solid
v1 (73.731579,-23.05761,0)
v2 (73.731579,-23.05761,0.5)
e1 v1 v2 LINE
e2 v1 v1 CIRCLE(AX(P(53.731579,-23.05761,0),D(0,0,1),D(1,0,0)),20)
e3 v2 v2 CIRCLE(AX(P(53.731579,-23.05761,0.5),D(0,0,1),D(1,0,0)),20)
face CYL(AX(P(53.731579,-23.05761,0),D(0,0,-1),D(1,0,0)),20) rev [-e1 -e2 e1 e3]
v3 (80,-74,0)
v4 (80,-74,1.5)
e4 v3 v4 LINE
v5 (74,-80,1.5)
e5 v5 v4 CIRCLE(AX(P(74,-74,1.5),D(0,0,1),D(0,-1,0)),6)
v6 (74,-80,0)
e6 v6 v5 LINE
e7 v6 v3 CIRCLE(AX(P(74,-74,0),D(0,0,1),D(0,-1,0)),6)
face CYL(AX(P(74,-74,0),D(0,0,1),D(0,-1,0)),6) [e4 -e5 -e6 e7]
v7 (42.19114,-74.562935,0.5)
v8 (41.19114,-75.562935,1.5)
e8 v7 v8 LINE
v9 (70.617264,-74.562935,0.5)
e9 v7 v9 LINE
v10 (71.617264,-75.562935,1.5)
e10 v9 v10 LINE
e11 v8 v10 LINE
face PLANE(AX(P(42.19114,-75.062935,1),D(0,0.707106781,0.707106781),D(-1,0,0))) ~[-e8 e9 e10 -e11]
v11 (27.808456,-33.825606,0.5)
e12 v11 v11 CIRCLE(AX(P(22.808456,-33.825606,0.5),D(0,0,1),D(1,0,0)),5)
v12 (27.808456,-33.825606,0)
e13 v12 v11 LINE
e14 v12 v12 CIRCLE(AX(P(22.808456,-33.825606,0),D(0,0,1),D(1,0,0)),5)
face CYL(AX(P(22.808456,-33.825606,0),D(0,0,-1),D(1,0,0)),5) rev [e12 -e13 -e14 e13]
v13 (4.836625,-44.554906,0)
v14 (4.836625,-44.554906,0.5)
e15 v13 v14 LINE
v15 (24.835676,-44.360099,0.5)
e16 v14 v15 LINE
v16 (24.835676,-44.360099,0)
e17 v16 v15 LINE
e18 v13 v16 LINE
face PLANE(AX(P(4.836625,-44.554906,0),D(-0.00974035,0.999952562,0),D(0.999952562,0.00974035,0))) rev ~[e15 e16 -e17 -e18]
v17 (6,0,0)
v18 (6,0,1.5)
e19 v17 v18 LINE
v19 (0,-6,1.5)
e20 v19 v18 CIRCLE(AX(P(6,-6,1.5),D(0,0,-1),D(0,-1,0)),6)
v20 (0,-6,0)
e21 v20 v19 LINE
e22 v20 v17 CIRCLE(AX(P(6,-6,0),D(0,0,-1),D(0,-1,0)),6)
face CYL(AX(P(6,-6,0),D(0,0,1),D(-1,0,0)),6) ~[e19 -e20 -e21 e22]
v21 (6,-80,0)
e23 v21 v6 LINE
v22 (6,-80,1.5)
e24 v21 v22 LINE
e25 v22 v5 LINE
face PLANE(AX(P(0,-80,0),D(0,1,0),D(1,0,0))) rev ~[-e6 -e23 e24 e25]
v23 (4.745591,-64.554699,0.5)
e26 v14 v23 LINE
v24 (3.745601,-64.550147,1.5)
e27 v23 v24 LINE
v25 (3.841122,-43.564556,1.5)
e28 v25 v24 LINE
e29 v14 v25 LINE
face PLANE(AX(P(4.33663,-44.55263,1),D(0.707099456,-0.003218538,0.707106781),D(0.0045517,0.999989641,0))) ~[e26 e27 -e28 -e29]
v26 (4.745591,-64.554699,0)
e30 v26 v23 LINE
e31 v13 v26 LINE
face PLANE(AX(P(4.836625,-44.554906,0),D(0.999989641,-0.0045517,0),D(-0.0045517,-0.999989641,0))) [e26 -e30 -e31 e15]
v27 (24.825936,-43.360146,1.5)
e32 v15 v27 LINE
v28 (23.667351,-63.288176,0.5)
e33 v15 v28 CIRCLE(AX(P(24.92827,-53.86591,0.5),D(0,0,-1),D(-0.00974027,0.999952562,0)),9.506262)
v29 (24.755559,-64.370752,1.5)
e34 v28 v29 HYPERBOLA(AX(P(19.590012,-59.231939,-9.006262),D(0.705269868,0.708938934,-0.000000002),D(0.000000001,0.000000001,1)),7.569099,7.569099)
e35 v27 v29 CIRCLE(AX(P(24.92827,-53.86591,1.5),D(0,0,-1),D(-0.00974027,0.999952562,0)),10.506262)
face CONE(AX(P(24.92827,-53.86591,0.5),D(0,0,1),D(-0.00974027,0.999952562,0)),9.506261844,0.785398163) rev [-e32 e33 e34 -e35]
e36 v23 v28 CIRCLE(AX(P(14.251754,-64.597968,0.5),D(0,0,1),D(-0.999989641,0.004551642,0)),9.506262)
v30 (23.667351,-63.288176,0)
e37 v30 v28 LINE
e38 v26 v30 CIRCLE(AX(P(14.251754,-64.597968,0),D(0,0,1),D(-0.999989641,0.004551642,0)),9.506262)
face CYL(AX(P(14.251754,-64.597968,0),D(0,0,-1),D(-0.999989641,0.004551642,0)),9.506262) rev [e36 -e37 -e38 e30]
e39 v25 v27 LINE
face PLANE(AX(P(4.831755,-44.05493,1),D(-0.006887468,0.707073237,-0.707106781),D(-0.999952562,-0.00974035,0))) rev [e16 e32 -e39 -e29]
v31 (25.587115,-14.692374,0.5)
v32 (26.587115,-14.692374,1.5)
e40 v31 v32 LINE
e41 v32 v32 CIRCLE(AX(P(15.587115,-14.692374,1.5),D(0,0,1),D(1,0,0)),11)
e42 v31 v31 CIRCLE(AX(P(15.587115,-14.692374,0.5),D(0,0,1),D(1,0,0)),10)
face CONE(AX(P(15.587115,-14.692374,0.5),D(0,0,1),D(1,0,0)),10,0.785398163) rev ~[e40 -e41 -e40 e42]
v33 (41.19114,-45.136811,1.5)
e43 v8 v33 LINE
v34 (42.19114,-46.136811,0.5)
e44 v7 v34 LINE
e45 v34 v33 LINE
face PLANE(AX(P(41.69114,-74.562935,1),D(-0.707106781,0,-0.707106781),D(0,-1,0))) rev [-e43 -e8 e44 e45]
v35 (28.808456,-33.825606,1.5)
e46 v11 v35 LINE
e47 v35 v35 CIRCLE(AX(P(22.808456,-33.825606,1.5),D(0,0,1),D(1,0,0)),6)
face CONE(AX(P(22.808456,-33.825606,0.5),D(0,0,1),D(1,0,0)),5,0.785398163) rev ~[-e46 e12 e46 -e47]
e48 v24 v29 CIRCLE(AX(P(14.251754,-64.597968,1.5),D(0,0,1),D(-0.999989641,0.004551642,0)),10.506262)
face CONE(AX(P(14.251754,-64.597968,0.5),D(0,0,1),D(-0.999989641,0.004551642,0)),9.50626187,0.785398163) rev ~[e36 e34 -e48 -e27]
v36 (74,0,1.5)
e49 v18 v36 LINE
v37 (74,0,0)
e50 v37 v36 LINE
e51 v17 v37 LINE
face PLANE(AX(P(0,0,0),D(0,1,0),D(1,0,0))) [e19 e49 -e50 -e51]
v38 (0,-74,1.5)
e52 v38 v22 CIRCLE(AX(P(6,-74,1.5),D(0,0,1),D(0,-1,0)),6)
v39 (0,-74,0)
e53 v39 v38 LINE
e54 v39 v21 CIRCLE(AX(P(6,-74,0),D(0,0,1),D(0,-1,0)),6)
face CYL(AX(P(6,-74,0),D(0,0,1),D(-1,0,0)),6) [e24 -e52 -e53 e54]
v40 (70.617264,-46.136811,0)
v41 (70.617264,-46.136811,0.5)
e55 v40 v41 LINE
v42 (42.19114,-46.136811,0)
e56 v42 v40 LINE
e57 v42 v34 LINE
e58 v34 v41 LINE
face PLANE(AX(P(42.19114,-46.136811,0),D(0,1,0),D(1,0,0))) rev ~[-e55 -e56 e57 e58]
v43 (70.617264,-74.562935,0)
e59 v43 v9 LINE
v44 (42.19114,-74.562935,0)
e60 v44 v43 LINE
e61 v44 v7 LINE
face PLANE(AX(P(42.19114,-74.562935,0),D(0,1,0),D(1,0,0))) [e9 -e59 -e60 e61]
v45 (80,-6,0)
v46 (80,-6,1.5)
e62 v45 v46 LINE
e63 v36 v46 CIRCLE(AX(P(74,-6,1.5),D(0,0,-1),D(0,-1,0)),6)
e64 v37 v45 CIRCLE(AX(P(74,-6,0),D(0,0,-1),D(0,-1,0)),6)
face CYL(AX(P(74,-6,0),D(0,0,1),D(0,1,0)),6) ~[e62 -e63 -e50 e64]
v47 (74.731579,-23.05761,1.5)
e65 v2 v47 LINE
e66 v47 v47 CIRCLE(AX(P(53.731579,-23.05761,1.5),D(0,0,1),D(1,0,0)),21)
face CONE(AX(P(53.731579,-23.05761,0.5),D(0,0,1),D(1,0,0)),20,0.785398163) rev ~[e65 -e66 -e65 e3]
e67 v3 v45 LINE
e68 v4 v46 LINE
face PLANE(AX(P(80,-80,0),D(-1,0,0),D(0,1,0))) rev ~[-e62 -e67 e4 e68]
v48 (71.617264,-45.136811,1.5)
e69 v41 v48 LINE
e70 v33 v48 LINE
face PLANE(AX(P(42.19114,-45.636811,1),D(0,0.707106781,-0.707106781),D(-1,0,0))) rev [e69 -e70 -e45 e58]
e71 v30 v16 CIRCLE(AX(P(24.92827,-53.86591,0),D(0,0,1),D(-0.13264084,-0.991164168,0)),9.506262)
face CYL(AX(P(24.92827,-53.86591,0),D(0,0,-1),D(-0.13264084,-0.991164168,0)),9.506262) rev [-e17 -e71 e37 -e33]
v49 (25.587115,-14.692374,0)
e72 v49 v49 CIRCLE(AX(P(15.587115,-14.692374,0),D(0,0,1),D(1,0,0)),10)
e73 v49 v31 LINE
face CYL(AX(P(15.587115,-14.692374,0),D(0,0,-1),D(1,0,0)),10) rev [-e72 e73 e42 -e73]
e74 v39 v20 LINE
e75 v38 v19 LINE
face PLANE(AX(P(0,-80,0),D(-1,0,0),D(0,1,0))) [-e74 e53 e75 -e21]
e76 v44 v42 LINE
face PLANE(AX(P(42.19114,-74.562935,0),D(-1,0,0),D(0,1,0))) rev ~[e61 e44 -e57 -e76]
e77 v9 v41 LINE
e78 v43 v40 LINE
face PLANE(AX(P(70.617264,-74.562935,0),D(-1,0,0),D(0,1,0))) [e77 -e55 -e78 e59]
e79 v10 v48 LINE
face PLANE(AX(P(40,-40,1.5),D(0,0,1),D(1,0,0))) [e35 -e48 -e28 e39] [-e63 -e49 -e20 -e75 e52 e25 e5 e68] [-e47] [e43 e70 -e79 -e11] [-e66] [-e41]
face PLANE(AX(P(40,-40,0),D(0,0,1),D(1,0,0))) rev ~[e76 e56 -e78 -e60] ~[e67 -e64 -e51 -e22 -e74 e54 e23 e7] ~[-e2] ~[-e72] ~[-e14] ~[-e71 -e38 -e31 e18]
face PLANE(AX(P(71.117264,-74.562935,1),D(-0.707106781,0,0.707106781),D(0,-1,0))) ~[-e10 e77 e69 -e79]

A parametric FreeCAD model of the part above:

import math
import FreeCAD as App
import Part
import Sketcher
from FreeCAD import Vector


def edges_at(feature, points):
    """Names of the edges that pass closest to the given points."""
    edges = feature.Shape.Edges
    near = lambda p: min(range(len(edges)), key=lambda i: edges[i].distToShape(Part.Vertex(*p))[0])
    return sorted({f"Edge{near(p) + 1}" for p in points})

doc = App.newDocument("Part")
body = doc.addObject("PartDesign::Body", "Body")

# Sketch on XY plane
sketch1 = doc.addObject("Sketcher::SketchObject", "Sketch")
body.addObject(sketch1)
sketch1.AttachmentSupport = (doc.XY_Plane, [""])
sketch1.MapMode = "FlatFace"
sketch1.addGeometry([
    Part.LineSegment(Vector(0, 0, 0), Vector(0, -80, 0)),  # 0
    Part.LineSegment(Vector(0, -80, 0), Vector(80, -80, 0)),  # 1
    Part.LineSegment(Vector(80, -80, 0), Vector(80, 0, 0)),  # 2
    Part.LineSegment(Vector(80, 0, 0), Vector(0, 0, 0)),  # 3
    Part.LineSegment(Vector(5, -65, 0), Vector(5, -45, 0)),  # 4
    Part.LineSegment(Vector(5, -45, 0), Vector(25, -44, 0)),  # 5
    Part.ArcOfCircle(Part.Circle(Vector(25, -54, 0), Vector(0, 0, 1), 10), math.radians(-98), math.radians(91)),  # 6
    Part.ArcOfCircle(Part.Circle(Vector(14, -65, 0), Vector(0, 0, 1), 10), math.radians(180), math.radians(368)),  # 7
    Part.LineSegment(Vector(71, -75, 0), Vector(42, -75, 0)),  # 8
    Part.LineSegment(Vector(42, -75, 0), Vector(42, -46, 0)),  # 9
    Part.LineSegment(Vector(42, -46, 0), Vector(71, -46, 0)),  # 10
    Part.LineSegment(Vector(71, -46, 0), Vector(71, -75, 0)),  # 11
    Part.Circle(Vector(23, -34, 0), Vector(0, 0, 1), 5),  # 12
    Part.Circle(Vector(16, -15, 0), Vector(0, 0, 1), 10),  # 13
    Part.Circle(Vector(54, -23, 0), Vector(0, 0, 1), 20),  # 14
], False)
sketch1.addConstraint([
    Sketcher.Constraint("Coincident", 0, 2, 1, 1),
    Sketcher.Constraint("Coincident", 1, 2, 2, 1),
    Sketcher.Constraint("Coincident", 2, 2, 3, 1),
    Sketcher.Constraint("Coincident", 3, 2, 0, 1),
    Sketcher.Constraint("Coincident", 4, 2, 5, 1),
    Sketcher.Constraint("Tangent", 5, 2, 6, 2),
    Sketcher.Constraint("Coincident", 6, 1, 7, 2),
    Sketcher.Constraint("Tangent", 7, 1, 4, 1),
    Sketcher.Constraint("Coincident", 8, 2, 9, 1),
    Sketcher.Constraint("Coincident", 9, 2, 10, 1),
    Sketcher.Constraint("Coincident", 10, 2, 11, 1),
    Sketcher.Constraint("Coincident", 11, 2, 8, 1),
    Sketcher.Constraint("Vertical", 0),
    Sketcher.Constraint("Horizontal", 1),
    Sketcher.Constraint("Vertical", 2),
    Sketcher.Constraint("Horizontal", 3),
    Sketcher.Constraint("Horizontal", 8),
    Sketcher.Constraint("Vertical", 9),
    Sketcher.Constraint("Horizontal", 10),
    Sketcher.Constraint("Vertical", 11),
    Sketcher.Constraint("Coincident", 3, 2, -1, 1),
    Sketcher.Constraint("Equal", 6, 7),
    Sketcher.Constraint("Equal", 3, 0),
    Sketcher.Constraint("Equal", 10, 9),
    Sketcher.Constraint("Equal", 4, 5),
    Sketcher.Constraint("Diameter", 12, 10.0),
    Sketcher.Constraint("Diameter", 13, 20.0),
    Sketcher.Constraint("Diameter", 14, 40.0),
    Sketcher.Constraint("DistanceX", 1, 1, 1, 2, 80.0),
    Sketcher.Constraint("Distance", 4, 20.0),
    Sketcher.Constraint("Radius", 6, 9.506262),
    Sketcher.Constraint("DistanceY", 5, 2, -1, 1, 44.360099),
    Sketcher.Constraint("DistanceY", 7, 1, -1, 1, 64.554699),
    Sketcher.Constraint("DistanceX", 7, 3, 12, 3, 8.556702),
    Sketcher.Constraint("DistanceY", 6, 3, 14, 3, 30.8083),
    Sketcher.Constraint("DistanceY", 4, 2, 12, 3, 10.7293),
    Sketcher.Constraint("DistanceY", 6, 3, 9, 2, 7.729099),
    Sketcher.Constraint("DistanceX", 8, 2, 8, 1, 28.426124),
    Sketcher.Constraint("DistanceX", -1, 1, 6, 3, 24.92827),
    Sketcher.Constraint("DistanceY", 7, 3, -1, 1, 64.597968),
    Sketcher.Constraint("DistanceX", -1, 1, 14, 3, 53.731579),
    Sketcher.Constraint("DistanceX", -1, 1, 8, 2, 42.19114),
    Sketcher.Constraint("DistanceX", 13, 3, 12, 3, 7.221341),
    Sketcher.Constraint("DistanceY", 12, 3, 13, 3, 19.133232),
])
pad1 = doc.addObject("PartDesign::Pad", "Pad")
body.addObject(pad1)
pad1.Profile = sketch1
pad1.Length = 1.5
doc.recompute()

chamfer = doc.addObject("PartDesign::Chamfer", "Chamfer")
body.addObject(chamfer)
chamfer.Base = (pad1, edges_at(pad1, [
    (42.191, -60.35, 1.5),
    (56.404, -46.137, 1.5),
    (70.617, -60.35, 1.5),
    (56.404, -74.563, 1.5),
    (4.791, -54.555, 1.5),
    (14.836, -44.458, 1.5),
    (14.887, -74.083, 1.5),
    (34.416, -54.452, 1.5),
    (33.732, -23.058, 1.5),
    (17.808, -33.826, 1.5),
    (5.587, -14.692, 1.5),
]))
chamfer.Size = 1
doc.recompute()

fillet = doc.addObject("PartDesign::Fillet", "Fillet")
body.addObject(fillet)
fillet.Base = (chamfer, edges_at(chamfer, [
    (80, 0, 0.75),
    (80, -80, 0.75),
    (0, -80, 0.75),
    (0, 0, 0.75),
]))
fillet.Radius = 6

doc.recompute()
